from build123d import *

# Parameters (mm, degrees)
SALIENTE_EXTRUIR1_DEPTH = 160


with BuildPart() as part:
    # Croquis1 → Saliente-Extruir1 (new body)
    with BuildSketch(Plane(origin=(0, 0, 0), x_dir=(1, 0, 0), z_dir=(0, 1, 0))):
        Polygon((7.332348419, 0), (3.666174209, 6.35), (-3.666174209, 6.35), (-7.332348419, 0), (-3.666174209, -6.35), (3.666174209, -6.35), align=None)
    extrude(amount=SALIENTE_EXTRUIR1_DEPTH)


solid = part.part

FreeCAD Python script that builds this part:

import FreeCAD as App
import Part
import Sketcher
from FreeCAD import Vector
Q = App.Units.Quantity

doc = App.newDocument("Part")
body = doc.addObject("PartDesign::Body", "Body")

# Sketch on XZ plane
sketch1 = body.newObject("Sketcher::SketchObject", "Sketch")
sketch1.AttachmentSupport = (doc.getObject("XZ_Plane"), [""])
sketch1.MapMode = "FlatFace"
sketch1.addGeometry([
    Part.LineSegment(Vector(7, 0, 0), Vector(4, -6, 0)),  # 0
    Part.LineSegment(Vector(4, -6, 0), Vector(-4, -6, 0)),  # 1
    Part.LineSegment(Vector(-4, -6, 0), Vector(-7, 0, 0)),  # 2
    Part.LineSegment(Vector(-7, 0, 0), Vector(-4, 6, 0)),  # 3
    Part.LineSegment(Vector(-4, 6, 0), Vector(4, 6, 0)),  # 4
    Part.LineSegment(Vector(4, 6, 0), Vector(7, 0, 0)),  # 5
], False)
sketch1.addConstraint([
    Sketcher.Constraint("Coincident", 0, 2, 1, 1),
    Sketcher.Constraint("Coincident", 1, 2, 2, 1),
    Sketcher.Constraint("Coincident", 2, 2, 3, 1),
    Sketcher.Constraint("Coincident", 3, 2, 4, 1),
    Sketcher.Constraint("Coincident", 4, 2, 5, 1),
    Sketcher.Constraint("Coincident", 5, 2, 0, 1),
    Sketcher.Constraint("Horizontal", 1),
    Sketcher.Constraint("Horizontal", 4),
    Sketcher.Constraint("Symmetric", 0, 2, 3, 2, -1, 1),
    Sketcher.Constraint("Symmetric", 2, 2, 5, 2, -1, 1),
    Sketcher.Constraint("PointOnObject", 2, 2, -1),
    Sketcher.Constraint("Parallel", 2, 5),
    Sketcher.Constraint("Vertical", 1, 2, 3, 2),
    Sketcher.Constraint("Angle", 0, Q("-120 deg")),
    Sketcher.Constraint("DistanceY", 1, 2, 3, 2, 12.7),
    Sketcher.Constraint("DistanceX", 1, 2, 1, 1, 7.332348),
])
pad1 = body.newObject("PartDesign::Pad", "Pad")
pad1.Profile = sketch1
pad1.Length = 160
pad1.Reversed = True

doc.recompute()
